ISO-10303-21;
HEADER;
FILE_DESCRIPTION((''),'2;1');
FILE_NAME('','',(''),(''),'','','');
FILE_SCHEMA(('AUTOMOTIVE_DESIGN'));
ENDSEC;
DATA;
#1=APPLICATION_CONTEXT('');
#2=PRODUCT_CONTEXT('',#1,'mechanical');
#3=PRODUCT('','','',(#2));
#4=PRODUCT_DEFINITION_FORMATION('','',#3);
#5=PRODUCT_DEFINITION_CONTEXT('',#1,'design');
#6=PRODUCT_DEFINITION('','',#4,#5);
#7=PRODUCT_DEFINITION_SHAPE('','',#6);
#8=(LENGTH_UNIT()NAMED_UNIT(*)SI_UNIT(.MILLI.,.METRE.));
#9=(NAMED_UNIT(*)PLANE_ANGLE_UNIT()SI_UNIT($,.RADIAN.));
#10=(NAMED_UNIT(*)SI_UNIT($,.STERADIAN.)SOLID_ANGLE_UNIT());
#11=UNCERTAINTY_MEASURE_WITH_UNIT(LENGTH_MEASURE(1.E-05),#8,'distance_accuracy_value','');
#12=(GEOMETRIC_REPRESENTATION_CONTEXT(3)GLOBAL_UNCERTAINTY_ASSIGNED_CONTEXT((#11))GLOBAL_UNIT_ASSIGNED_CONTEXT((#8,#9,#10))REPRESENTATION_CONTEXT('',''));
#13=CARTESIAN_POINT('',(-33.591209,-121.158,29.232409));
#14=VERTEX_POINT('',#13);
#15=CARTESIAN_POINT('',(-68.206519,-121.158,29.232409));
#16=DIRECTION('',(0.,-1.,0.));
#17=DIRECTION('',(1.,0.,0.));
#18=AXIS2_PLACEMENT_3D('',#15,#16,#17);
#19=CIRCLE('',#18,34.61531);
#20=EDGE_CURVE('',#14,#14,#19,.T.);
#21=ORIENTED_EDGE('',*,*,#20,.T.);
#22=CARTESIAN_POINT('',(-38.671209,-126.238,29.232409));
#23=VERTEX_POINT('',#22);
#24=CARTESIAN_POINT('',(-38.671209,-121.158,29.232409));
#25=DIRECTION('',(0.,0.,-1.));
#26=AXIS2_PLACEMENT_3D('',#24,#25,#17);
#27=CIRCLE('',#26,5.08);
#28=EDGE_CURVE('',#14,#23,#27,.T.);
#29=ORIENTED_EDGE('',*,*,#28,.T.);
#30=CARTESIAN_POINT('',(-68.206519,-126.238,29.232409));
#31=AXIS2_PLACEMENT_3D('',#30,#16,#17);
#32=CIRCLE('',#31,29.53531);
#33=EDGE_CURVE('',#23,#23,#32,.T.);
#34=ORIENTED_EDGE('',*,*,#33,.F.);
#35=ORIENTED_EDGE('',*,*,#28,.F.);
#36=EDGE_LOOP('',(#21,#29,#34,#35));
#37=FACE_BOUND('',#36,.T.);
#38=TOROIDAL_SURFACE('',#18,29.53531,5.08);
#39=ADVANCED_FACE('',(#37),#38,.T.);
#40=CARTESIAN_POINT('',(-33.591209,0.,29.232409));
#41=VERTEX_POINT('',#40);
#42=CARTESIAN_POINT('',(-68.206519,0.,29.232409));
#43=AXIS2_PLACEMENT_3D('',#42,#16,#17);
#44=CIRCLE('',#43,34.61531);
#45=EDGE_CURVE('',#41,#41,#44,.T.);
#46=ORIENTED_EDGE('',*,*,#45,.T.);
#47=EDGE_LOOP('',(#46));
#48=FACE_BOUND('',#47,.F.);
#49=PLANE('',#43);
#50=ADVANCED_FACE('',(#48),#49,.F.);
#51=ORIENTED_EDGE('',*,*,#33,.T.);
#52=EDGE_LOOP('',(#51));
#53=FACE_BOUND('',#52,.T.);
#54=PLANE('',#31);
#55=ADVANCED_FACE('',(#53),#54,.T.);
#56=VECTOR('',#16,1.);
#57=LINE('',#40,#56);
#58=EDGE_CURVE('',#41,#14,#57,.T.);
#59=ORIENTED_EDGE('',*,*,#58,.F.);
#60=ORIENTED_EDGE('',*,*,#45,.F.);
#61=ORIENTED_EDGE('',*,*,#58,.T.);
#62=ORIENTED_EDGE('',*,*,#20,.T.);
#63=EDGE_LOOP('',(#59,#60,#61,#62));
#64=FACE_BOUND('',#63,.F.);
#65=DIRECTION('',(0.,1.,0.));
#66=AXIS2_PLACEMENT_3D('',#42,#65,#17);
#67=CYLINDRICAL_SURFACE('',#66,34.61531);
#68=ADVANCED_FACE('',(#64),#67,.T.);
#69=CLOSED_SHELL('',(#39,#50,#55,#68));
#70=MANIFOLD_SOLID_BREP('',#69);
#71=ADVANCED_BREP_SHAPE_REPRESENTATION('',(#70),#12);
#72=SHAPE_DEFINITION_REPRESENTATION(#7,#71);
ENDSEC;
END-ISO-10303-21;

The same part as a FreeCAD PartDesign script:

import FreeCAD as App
import Part
import Sketcher
Q = App.Units.Quantity


def edges_at(feature, points):
    """Names of the edges that pass closest to the given points."""
    edges = feature.Shape.Edges
    near = lambda p: min(range(len(edges)), key=lambda i: edges[i].distToShape(Part.Vertex(*p))[0])
    return sorted({f"Edge{near(p) + 1}" for p in points})

doc = App.newDocument("Part")
body = doc.addObject("PartDesign::Body", "Body")

# Sketch on XZ plane
sketch1 = doc.addObject("Sketcher::SketchObject", "Sketch")
body.addObject(sketch1)
sketch1.AttachmentSupport = (doc.XZ_Plane, [""])
sketch1.MapMode = "FlatFace"
sketch1.addGeometry(Part.Circle(App.Vector(-68, 29, 0), App.Vector(0, 0, 1), 35), False)
sketch1.addConstraint(Sketcher.Constraint("Diameter", 0, Q("69.23062 mm")))
sketch1.addConstraint(Sketcher.Constraint("DistanceX", 0, 3, -1, 1, Q("68.206519 mm")))
sketch1.addConstraint(Sketcher.Constraint("DistanceY", -1, 1, 0, 3, Q("29.232409 mm")))
pad1 = doc.addObject("PartDesign::Pad", "Pad")
body.addObject(pad1)
pad1.Profile = sketch1
pad1.Length = Q("4.97 in")
doc.recompute()

fillet = doc.addObject("PartDesign::Fillet", "Fillet")
body.addObject(fillet)
fillet.Base = (pad1, edges_at(pad1, [(-102.822, -126.238, 29.232)]))
fillet.Radius = Q("0.2 in")

doc.recompute()
